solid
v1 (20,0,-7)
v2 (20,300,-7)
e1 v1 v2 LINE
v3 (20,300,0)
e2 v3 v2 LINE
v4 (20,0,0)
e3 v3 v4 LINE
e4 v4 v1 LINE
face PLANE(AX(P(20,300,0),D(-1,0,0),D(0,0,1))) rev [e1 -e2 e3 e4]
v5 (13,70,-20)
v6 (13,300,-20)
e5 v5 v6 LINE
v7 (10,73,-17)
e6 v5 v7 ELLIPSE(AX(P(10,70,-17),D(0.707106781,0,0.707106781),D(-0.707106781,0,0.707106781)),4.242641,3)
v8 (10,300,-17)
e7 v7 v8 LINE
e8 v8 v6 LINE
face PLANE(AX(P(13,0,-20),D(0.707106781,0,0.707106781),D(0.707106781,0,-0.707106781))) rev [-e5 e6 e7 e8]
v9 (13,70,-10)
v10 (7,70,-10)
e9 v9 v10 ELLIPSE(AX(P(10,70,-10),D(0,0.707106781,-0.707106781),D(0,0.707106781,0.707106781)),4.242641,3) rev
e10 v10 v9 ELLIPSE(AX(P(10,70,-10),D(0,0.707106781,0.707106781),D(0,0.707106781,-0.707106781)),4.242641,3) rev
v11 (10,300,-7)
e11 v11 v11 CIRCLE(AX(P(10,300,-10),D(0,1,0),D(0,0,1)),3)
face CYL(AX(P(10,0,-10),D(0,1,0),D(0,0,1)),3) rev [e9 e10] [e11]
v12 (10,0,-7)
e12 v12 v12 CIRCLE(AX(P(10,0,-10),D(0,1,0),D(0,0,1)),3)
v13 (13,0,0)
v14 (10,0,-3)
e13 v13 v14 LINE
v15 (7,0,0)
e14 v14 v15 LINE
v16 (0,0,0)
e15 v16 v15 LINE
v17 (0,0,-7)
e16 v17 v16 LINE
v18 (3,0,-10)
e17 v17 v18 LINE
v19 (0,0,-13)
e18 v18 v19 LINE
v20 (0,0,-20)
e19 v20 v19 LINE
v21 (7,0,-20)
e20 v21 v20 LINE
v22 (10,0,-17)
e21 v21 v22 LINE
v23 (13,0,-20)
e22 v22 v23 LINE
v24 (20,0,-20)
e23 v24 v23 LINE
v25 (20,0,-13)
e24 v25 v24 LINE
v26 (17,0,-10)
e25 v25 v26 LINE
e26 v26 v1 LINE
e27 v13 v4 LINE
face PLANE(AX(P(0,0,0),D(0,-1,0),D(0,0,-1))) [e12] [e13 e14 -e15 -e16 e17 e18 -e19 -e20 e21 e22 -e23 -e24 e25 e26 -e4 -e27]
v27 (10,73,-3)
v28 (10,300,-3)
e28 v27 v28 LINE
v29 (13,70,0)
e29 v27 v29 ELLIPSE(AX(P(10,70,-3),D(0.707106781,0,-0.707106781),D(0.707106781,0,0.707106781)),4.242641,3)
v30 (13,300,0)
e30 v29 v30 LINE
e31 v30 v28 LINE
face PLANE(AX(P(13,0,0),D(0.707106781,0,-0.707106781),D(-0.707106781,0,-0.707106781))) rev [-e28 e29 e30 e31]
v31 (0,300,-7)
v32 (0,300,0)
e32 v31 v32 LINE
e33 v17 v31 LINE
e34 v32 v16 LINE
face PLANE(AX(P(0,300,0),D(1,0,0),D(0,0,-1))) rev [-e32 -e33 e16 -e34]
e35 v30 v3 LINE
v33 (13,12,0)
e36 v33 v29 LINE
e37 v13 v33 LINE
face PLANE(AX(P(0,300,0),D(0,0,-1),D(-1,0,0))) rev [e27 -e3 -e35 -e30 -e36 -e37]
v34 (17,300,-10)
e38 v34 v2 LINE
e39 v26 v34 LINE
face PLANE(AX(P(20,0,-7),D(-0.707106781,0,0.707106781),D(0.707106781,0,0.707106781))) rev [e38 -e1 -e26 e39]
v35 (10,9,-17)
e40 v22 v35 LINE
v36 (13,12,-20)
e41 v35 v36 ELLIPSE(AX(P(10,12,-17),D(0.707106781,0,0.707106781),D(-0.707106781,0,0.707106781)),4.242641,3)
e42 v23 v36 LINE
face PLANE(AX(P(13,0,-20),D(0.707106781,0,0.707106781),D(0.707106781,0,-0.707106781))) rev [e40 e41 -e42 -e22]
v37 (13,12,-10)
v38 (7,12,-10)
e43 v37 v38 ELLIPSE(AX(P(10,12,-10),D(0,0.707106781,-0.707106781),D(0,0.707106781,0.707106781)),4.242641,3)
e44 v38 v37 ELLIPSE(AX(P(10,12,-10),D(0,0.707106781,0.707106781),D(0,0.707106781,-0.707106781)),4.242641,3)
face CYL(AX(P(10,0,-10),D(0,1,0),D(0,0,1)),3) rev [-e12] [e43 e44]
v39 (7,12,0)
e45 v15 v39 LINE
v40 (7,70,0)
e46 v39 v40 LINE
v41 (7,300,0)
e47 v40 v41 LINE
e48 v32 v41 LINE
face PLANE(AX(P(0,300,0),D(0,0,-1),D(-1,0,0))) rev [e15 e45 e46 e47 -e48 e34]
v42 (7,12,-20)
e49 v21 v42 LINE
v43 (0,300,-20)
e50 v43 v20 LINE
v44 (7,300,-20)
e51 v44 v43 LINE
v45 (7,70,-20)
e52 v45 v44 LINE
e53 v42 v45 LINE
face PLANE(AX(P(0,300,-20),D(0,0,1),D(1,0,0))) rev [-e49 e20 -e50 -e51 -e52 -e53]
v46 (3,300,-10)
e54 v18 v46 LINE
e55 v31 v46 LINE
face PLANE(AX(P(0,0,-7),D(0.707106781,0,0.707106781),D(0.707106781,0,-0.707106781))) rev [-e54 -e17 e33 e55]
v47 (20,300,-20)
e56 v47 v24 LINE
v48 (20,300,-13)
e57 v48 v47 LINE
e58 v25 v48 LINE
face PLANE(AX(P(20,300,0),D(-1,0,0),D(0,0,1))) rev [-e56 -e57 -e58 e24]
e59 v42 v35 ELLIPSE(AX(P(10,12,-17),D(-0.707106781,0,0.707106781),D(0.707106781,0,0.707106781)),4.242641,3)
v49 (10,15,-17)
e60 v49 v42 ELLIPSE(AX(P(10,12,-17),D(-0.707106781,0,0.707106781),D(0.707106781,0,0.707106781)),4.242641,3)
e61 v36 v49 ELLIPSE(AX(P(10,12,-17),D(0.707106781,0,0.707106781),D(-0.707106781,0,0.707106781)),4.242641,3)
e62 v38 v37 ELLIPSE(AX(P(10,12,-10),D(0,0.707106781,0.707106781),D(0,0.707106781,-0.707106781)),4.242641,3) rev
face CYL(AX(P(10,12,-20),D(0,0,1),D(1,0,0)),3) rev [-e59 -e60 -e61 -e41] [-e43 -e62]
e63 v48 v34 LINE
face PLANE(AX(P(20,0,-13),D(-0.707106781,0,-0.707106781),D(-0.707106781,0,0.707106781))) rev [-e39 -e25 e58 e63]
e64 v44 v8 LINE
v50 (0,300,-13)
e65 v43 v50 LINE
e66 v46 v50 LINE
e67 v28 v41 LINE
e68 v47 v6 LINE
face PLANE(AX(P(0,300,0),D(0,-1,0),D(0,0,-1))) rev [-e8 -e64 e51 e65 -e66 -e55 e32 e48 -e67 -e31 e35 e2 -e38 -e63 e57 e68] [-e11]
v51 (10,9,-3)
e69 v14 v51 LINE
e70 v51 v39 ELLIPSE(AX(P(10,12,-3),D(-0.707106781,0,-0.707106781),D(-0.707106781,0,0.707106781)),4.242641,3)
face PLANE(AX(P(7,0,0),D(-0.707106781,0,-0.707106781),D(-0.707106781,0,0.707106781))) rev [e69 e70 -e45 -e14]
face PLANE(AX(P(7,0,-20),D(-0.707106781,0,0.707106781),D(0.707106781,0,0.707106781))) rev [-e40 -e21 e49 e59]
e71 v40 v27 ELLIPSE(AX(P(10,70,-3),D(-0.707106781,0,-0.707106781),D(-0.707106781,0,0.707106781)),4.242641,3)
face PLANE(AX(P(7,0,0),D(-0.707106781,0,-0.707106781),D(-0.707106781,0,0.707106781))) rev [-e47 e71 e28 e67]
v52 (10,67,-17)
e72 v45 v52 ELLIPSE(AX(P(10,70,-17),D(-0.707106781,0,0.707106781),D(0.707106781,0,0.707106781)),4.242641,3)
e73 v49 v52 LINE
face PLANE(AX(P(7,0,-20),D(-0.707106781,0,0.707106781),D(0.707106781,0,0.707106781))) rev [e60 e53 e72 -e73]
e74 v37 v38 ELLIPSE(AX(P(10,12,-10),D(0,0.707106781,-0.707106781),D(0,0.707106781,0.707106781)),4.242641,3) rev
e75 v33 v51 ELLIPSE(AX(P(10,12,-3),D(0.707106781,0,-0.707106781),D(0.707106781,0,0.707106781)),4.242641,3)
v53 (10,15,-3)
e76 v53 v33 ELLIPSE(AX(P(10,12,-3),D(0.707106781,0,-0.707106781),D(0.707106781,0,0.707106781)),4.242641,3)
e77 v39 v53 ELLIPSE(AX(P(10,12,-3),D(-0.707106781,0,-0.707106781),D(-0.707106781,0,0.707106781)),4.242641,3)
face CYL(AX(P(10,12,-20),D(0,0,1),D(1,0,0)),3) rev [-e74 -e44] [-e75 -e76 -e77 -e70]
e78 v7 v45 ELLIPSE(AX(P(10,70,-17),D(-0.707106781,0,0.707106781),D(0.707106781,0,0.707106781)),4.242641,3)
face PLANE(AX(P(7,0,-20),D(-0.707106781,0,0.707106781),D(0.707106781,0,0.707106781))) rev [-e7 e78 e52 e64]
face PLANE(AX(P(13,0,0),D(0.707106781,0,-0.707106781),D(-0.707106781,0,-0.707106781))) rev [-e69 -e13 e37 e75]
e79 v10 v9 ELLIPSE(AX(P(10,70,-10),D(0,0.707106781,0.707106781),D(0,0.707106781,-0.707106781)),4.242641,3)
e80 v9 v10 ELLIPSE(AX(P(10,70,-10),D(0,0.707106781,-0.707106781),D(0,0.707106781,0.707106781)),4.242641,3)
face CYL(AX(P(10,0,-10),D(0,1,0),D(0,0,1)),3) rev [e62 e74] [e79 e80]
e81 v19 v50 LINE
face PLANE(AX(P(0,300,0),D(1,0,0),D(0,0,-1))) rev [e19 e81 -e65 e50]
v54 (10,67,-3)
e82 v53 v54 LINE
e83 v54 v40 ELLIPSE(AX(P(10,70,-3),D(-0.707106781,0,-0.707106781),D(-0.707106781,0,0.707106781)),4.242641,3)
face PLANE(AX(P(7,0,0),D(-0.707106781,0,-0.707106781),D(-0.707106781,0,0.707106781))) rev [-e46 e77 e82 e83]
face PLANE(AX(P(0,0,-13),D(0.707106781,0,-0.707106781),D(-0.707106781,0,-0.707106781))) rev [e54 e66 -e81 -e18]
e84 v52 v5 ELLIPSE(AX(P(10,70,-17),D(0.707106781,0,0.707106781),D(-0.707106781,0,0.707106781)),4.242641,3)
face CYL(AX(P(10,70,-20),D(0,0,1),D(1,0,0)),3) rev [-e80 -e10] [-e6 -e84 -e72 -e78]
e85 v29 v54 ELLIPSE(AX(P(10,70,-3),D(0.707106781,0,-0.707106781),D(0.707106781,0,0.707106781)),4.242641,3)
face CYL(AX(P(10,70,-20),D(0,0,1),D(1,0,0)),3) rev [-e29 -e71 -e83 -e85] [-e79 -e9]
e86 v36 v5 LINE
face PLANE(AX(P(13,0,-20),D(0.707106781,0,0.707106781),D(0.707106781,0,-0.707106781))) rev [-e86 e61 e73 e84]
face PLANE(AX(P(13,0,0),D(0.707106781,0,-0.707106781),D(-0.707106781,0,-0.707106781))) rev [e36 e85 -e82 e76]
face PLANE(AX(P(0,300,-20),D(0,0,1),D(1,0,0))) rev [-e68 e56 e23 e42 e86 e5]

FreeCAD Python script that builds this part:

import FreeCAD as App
import Part
import Sketcher
from FreeCAD import Vector


def add_polygon(sketch, points):
    """Adds a closed chain of lines whose ends are joined by coincident constraints."""
    first, n = sketch.GeometryCount, len(points)
    for a, b in zip(points, points[1:] + points[:1]):
        sketch.addGeometry(Part.LineSegment(App.Vector(*a, 0), App.Vector(*b, 0)), False)
    for i in range(n):
        sketch.addConstraint(Sketcher.Constraint("Coincident", first + i, 2, first + (i + 1) % n, 1))

doc = App.newDocument("Part")
body = doc.addObject("PartDesign::Body", "Body")

# Sketch on XZ plane
sketch1 = body.newObject("Sketcher::SketchObject", "Sketch")
sketch1.AttachmentSupport = (doc.getObject("XZ_Plane"), [""])
sketch1.MapMode = "FlatFace"
add_polygon(sketch1, [(0, -20), (0, 0), (20, 0), (20, -20)])  # lines 0-3
sketch1.addConstraint(Sketcher.Constraint("Vertical", 0))
sketch1.addConstraint(Sketcher.Constraint("Horizontal", 1))
sketch1.addConstraint(Sketcher.Constraint("Vertical", 2))
sketch1.addConstraint(Sketcher.Constraint("Horizontal", 3))
sketch1.addConstraint(Sketcher.Constraint("Coincident", 0, 2, -1, 1))
sketch1.addConstraint(Sketcher.Constraint("Equal", 3, 0))
sketch1.addConstraint(Sketcher.Constraint("DistanceX", 1, 1, 1, 2, 20.0))
pad1 = body.newObject("PartDesign::Pad", "Pad")
pad1.Profile = sketch1
pad1.Length = 300
pad1.Reversed = True

# Sketch on XZ plane
sketch2 = body.newObject("Sketcher::SketchObject", "Sketch001")
sketch2.AttachmentSupport = (doc.getObject("XZ_Plane"), [""])
sketch2.MapMode = "FlatFace"
sketch2.AttachmentOffset = App.Placement(Vector(0, 0, -300), App.Rotation())
add_polygon(sketch2, [(7, -20), (10, -17), (13, -20)])  # lines 0-2
add_polygon(sketch2, [(20, -13), (17, -10), (20, -7)])  # lines 3-5
add_polygon(sketch2, [(0, -13), (0, -7), (3, -10)])  # lines 6-8
add_polygon(sketch2, [(7, 0), (13, 0), (10, -3)])  # lines 9-11
sketch2.addConstraint(Sketcher.Constraint("Horizontal", 2))
sketch2.addConstraint(Sketcher.Constraint("Vertical", 5))
sketch2.addConstraint(Sketcher.Constraint("Vertical", 6))
sketch2.addConstraint(Sketcher.Constraint("Horizontal", 9))
sketch2.addConstraint(Sketcher.Constraint("PointOnObject", 6, 2, -2))
sketch2.addConstraint(Sketcher.Constraint("PointOnObject", 9, 2, -1))
sketch2.addConstraint(Sketcher.Constraint("Perpendicular", 0, 1))
sketch2.addConstraint(Sketcher.Constraint("Parallel", 1, 3))
sketch2.addConstraint(Sketcher.Constraint("Perpendicular", 3, 4))
sketch2.addConstraint(Sketcher.Constraint("Perpendicular", 4, 7))
sketch2.addConstraint(Sketcher.Constraint("Perpendicular", 7, 8))
sketch2.addConstraint(Sketcher.Constraint("Parallel", 8, 10))
sketch2.addConstraint(Sketcher.Constraint("Perpendicular", 10, 11))
sketch2.addConstraint(Sketcher.Constraint("Horizontal", 4, 2, 6, 2))
sketch2.addConstraint(Sketcher.Constraint("Horizontal", 3, 2, 7, 2))
sketch2.addConstraint(Sketcher.Constraint("Horizontal", 5, 2, 8, 2))
sketch2.addConstraint(Sketcher.Constraint("Vertical", 1, 2, 9, 2))
sketch2.addConstraint(Sketcher.Constraint("Vertical", 0, 2, 10, 2))
sketch2.addConstraint(Sketcher.Constraint("Equal", 9, 5))
sketch2.addConstraint(Sketcher.Constraint("DistanceX", 2, 2, 2, 1, 6.0))
sketch2.addConstraint(Sketcher.Constraint("DistanceX", -1, 1, 0, 2, 10.0))
sketch2.addConstraint(Sketcher.Constraint("DistanceY", 0, 2, -1, 1, 17.0))
sketch2.addConstraint(Sketcher.Constraint("DistanceX", -1, 1, 3, 2, 17.0))
sketch2.addConstraint(Sketcher.Constraint("DistanceY", 3, 2, -1, 1, 10.0))
pocket1 = body.newObject("PartDesign::Pocket", "Pocket")
pocket1.Profile = sketch2
pocket1.Type = "ThroughAll"
pocket1.Reversed = True

# Sketch on XZ plane
sketch3 = body.newObject("Sketcher::SketchObject", "Sketch002")
sketch3.AttachmentSupport = (doc.getObject("XZ_Plane"), [""])
sketch3.MapMode = "FlatFace"
sketch3.AttachmentOffset = App.Placement(Vector(0, 0, -300), App.Rotation())
sketch3.addGeometry(Part.Circle(Vector(10, -10, 0), Vector(0, 0, 1), 3), False)
sketch3.addConstraint(Sketcher.Constraint("Diameter", 0, 6.0))
sketch3.addConstraint(Sketcher.Constraint("DistanceX", -1, 1, 0, 3, 10.0))
sketch3.addConstraint(Sketcher.Constraint("DistanceY", 0, 3, -1, 1, 10.0))
pocket2 = body.newObject("PartDesign::Pocket", "Pocket001")
pocket2.Profile = sketch3
pocket2.Type = "ThroughAll"
pocket2.Reversed = True

# Sketch on XY plane
sketch4 = body.newObject("Sketcher::SketchObject", "Sketch003")
sketch4.AttachmentSupport = (doc.getObject("XY_Plane"), [""])
sketch4.MapMode = "FlatFace"
sketch4.addGeometry(Part.Circle(Vector(10, 12, 0), Vector(0, 0, 1), 3), False)
sketch4.addGeometry(Part.Circle(Vector(10, 70, 0), Vector(0, 0, 1), 3), False)
sketch4.addConstraint(Sketcher.Constraint("Equal", 0, 1))
sketch4.addConstraint(Sketcher.Constraint("Vertical", 0, 3, 1, 3))
sketch4.addConstraint(Sketcher.Constraint("Diameter", 0, 6.0))
sketch4.addConstraint(Sketcher.Constraint("DistanceX", -1, 1, 0, 3, 10.0))
sketch4.addConstraint(Sketcher.Constraint("DistanceY", -1, 1, 0, 3, 12.0))
sketch4.addConstraint(Sketcher.Constraint("DistanceY", -1, 1, 1, 3, 70.0))
pocket3 = body.newObject("PartDesign::Pocket", "Pocket002")
pocket3.Profile = sketch4
pocket3.Type = "ThroughAll"

doc.recompute()
